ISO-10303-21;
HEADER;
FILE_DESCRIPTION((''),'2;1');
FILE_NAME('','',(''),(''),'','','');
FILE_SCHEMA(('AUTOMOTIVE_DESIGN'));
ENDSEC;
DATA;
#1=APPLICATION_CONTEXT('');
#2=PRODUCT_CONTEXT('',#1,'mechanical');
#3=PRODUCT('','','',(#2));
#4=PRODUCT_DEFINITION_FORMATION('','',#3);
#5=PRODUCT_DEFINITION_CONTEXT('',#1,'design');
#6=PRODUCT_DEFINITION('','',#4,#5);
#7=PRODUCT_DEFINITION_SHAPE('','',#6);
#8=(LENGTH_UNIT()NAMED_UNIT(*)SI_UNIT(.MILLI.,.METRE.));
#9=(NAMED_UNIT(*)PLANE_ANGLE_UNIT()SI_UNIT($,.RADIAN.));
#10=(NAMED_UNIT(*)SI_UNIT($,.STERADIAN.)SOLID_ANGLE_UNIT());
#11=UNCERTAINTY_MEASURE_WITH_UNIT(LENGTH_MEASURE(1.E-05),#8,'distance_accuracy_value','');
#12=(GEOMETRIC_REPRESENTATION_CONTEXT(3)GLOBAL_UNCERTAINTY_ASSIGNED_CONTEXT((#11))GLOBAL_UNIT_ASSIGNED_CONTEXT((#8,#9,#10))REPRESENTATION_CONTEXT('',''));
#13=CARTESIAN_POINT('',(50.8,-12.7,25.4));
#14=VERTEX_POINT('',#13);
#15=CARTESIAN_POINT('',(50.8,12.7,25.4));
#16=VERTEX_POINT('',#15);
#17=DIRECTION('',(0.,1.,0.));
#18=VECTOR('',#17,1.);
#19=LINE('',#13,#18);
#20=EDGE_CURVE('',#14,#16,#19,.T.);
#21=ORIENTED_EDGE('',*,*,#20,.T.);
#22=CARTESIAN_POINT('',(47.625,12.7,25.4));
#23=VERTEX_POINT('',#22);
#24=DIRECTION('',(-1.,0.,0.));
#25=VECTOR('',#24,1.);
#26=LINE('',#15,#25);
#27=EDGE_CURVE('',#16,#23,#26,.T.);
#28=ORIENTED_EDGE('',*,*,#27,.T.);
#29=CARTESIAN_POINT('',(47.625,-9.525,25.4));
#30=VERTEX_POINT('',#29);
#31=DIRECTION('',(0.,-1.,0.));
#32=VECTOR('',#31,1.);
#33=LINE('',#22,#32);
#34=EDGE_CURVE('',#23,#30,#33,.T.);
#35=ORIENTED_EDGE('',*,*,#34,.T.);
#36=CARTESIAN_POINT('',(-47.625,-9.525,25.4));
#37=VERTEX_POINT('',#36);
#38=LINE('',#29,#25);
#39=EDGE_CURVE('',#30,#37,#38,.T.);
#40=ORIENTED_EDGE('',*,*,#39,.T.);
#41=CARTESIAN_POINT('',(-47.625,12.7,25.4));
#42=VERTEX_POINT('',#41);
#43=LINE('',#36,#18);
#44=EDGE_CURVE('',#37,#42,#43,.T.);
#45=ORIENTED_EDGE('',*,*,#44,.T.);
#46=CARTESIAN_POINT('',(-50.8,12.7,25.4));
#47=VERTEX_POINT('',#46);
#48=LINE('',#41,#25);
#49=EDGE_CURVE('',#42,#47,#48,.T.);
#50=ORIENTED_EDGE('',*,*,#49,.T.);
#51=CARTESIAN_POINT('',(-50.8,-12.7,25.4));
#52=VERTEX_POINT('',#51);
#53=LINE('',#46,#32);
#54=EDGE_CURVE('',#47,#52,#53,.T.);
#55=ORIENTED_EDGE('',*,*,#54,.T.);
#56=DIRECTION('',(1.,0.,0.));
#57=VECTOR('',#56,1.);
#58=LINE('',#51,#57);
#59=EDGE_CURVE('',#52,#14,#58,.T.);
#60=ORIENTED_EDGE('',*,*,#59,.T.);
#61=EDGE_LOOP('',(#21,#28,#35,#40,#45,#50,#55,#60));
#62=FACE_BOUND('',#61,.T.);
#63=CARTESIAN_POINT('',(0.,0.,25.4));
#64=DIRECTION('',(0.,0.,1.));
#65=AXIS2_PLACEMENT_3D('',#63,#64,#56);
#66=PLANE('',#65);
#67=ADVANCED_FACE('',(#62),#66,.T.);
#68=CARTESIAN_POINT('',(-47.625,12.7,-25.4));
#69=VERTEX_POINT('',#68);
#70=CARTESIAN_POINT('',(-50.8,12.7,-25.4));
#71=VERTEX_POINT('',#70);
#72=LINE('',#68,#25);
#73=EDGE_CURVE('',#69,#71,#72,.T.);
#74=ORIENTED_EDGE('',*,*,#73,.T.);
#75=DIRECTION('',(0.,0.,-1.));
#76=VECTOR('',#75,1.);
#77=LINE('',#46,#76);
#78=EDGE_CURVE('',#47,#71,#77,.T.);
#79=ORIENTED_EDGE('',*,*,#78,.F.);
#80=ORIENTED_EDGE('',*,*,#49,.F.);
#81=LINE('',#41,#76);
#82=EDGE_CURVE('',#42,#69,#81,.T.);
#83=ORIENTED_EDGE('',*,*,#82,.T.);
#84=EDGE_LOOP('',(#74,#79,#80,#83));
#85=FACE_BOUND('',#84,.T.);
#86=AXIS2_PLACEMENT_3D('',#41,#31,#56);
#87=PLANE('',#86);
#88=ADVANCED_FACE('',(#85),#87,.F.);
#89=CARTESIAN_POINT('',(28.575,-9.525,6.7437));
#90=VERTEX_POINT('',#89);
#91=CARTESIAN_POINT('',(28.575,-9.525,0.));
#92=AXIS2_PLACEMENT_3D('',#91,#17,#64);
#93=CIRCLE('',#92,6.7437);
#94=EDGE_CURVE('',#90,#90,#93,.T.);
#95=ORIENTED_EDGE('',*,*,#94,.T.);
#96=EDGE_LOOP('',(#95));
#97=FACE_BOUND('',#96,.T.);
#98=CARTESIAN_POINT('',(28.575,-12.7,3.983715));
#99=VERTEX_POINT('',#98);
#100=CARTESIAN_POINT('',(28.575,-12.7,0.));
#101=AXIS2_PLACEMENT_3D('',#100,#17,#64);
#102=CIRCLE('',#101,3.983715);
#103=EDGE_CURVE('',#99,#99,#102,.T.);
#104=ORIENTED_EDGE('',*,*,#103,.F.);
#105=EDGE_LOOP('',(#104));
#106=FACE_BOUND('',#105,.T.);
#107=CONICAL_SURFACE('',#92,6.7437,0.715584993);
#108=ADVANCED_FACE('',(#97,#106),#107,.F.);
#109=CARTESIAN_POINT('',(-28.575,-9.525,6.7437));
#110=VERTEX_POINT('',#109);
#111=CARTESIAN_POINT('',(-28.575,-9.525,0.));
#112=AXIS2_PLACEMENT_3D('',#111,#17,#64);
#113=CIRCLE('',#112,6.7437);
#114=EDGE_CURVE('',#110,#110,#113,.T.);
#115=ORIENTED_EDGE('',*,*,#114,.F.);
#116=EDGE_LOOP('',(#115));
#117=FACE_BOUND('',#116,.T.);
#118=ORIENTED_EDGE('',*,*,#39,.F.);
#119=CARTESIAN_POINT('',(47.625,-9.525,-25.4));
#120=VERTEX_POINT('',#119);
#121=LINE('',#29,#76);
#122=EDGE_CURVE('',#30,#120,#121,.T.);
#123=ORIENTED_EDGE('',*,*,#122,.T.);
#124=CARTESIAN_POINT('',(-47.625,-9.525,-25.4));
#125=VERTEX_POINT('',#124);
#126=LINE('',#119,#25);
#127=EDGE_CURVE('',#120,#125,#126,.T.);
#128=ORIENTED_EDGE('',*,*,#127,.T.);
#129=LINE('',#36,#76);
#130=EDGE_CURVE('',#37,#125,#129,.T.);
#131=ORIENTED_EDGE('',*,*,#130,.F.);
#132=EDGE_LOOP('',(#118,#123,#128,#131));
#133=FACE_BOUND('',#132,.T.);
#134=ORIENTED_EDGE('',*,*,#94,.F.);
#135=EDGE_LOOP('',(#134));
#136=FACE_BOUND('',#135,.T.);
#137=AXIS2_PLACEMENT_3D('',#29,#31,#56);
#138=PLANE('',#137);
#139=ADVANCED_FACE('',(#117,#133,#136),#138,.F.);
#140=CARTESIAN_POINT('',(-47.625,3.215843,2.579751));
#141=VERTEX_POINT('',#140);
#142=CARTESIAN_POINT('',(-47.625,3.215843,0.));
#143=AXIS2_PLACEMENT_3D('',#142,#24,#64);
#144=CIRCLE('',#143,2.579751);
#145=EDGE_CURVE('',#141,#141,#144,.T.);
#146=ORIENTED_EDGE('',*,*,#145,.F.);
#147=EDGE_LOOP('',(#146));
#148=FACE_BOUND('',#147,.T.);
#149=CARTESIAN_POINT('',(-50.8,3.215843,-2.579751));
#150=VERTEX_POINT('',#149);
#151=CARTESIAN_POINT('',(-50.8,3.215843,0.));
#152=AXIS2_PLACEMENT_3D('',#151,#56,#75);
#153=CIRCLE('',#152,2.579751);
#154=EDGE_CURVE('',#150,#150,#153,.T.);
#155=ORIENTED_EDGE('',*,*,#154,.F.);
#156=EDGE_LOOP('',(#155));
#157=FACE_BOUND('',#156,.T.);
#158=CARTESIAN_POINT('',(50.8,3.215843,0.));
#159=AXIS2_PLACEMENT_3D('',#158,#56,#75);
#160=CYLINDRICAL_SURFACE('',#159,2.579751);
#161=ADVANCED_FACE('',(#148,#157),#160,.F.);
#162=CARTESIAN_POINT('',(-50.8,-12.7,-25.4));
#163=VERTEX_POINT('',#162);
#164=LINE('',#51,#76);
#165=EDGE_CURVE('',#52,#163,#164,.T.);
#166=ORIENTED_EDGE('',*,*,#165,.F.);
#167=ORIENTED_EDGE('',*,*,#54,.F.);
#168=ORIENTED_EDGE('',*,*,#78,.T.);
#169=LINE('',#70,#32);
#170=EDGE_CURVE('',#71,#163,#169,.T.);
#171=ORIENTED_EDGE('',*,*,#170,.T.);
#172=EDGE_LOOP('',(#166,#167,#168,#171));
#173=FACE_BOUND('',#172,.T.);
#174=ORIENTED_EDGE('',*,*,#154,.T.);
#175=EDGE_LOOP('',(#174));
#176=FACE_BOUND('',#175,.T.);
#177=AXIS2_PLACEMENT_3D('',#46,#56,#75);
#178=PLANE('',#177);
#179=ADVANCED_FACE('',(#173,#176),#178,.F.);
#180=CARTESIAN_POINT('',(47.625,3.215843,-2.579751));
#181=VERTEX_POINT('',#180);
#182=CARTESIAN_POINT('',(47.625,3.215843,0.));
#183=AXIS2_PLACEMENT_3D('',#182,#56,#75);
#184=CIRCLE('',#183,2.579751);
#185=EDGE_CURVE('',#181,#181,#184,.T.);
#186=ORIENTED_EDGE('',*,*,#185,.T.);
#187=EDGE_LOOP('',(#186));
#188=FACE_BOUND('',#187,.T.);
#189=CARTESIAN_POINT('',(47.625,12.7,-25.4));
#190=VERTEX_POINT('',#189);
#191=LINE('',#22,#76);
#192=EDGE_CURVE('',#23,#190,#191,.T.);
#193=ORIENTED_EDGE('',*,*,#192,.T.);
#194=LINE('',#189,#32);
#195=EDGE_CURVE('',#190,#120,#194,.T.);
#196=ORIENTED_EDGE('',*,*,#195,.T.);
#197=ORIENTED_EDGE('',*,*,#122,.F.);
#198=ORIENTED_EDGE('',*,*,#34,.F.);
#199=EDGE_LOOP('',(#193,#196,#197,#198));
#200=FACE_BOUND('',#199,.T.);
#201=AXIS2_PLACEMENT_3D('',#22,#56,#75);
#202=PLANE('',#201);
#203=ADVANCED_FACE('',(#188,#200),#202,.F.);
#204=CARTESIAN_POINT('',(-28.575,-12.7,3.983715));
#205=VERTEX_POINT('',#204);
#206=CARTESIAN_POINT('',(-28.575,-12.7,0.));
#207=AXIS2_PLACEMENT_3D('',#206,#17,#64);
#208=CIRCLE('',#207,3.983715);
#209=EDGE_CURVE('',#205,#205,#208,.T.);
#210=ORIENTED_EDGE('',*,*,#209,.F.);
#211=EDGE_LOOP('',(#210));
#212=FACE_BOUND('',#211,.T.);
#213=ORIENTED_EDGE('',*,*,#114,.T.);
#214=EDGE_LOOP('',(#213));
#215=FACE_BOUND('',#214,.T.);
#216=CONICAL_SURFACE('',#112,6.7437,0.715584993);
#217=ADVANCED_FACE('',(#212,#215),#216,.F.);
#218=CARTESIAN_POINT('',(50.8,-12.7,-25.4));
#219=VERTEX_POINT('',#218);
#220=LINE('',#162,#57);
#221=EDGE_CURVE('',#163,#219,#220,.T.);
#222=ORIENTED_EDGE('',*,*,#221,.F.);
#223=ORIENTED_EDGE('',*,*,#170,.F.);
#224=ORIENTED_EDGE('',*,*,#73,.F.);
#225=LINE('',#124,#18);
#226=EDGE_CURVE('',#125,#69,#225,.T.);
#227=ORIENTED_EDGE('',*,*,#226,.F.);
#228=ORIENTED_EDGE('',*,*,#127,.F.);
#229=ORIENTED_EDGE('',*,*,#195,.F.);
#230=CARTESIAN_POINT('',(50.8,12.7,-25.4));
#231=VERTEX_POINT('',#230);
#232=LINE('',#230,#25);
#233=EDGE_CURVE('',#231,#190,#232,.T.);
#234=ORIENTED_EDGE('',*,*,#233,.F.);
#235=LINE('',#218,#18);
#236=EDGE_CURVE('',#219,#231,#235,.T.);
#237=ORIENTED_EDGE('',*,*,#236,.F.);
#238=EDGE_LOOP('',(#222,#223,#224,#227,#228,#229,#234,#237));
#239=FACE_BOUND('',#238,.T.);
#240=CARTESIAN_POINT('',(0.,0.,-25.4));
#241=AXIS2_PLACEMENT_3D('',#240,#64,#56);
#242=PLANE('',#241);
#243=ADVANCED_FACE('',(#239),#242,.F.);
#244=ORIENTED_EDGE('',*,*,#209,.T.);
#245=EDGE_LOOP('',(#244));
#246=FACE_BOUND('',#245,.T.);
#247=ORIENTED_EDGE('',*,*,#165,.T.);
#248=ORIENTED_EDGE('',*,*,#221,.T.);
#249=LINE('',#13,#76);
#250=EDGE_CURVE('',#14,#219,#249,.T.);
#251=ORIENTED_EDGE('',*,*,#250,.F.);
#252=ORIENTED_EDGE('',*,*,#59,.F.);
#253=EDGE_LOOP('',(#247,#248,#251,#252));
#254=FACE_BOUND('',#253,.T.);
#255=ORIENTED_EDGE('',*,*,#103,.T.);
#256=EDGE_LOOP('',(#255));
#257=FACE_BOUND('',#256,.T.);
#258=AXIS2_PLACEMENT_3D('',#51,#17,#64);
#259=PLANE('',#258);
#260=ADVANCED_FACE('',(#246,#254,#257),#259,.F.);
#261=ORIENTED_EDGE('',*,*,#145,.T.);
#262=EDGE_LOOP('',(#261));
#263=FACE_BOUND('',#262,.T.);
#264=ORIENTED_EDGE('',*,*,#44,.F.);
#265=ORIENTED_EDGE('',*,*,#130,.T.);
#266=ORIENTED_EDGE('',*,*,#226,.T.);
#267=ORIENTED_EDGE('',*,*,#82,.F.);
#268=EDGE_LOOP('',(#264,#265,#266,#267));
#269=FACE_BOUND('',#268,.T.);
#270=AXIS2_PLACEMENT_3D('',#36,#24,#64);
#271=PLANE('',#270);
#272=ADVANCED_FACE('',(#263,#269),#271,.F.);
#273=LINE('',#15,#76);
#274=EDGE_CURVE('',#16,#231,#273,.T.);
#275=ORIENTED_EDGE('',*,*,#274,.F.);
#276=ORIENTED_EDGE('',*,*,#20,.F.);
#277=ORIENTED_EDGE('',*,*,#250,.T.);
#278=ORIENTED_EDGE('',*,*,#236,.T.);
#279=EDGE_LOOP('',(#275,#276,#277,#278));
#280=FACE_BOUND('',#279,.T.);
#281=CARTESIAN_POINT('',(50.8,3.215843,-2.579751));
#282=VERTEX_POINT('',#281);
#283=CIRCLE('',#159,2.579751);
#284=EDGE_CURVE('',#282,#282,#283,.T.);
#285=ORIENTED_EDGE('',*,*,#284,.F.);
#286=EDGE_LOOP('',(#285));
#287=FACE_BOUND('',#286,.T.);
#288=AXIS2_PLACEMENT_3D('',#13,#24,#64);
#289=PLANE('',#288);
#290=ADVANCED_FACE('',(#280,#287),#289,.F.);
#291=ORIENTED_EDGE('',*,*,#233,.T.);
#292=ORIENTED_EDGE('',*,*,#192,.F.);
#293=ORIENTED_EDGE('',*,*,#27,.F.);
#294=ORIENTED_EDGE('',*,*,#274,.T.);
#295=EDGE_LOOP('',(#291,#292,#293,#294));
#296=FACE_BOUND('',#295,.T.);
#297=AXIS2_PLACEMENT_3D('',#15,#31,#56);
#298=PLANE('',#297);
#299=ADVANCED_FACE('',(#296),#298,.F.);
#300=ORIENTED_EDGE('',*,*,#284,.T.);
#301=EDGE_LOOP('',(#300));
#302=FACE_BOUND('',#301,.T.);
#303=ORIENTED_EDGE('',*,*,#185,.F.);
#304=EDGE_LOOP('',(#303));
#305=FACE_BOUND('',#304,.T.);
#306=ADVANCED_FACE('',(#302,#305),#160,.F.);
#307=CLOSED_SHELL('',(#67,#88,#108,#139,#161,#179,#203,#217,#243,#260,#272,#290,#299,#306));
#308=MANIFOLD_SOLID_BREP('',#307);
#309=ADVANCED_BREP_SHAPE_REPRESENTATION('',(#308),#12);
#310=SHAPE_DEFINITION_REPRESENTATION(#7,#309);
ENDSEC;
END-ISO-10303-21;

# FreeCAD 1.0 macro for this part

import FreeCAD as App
import Part
import Sketcher
from FreeCAD import Vector
Q = App.Units.Quantity

doc = App.newDocument("Part")
body = doc.addObject("PartDesign::Body", "Body")

sketch1 = doc.addObject("Sketcher::SketchObject", "Sketch")
body.addObject(sketch1)
sketch1.AttachmentSupport = (doc.XY_Plane, [""])
sketch1.MapMode = "FlatFace"
sketch1.addGeometry(Part.LineSegment(Vector(-50.8, 12.7, 0), Vector(-50.8, -12.7, 0)), False)
sketch1.addGeometry(Part.LineSegment(Vector(-50.8, -12.7, 0), Vector(50.8, -12.7, 0)), False)
sketch1.addGeometry(Part.LineSegment(Vector(50.8, -12.7, 0), Vector(50.8, 12.7, 0)), False)
sketch1.addGeometry(Part.LineSegment(Vector(50.8, 12.7, 0), Vector(47.6, 12.7, 0)), False)
sketch1.addGeometry(Part.LineSegment(Vector(47.6, 12.7, 0), Vector(47.6, -9.5, 0)), False)
sketch1.addGeometry(Part.LineSegment(Vector(47.6, -9.5, 0), Vector(-47.6, -9.5, 0)), False)
sketch1.addGeometry(Part.LineSegment(Vector(-47.6, -9.5, 0), Vector(-47.6, 12.7, 0)), False)
sketch1.addGeometry(Part.LineSegment(Vector(-47.6, 12.7, 0), Vector(-50.8, 12.7, 0)), False)
sketch1.addConstraint(Sketcher.Constraint("Coincident", 0, 2, 1, 1))
sketch1.addConstraint(Sketcher.Constraint("Coincident", 1, 2, 2, 1))
sketch1.addConstraint(Sketcher.Constraint("Coincident", 2, 2, 3, 1))
sketch1.addConstraint(Sketcher.Constraint("Coincident", 3, 2, 4, 1))
sketch1.addConstraint(Sketcher.Constraint("Coincident", 4, 2, 5, 1))
sketch1.addConstraint(Sketcher.Constraint("Coincident", 5, 2, 6, 1))
sketch1.addConstraint(Sketcher.Constraint("Coincident", 6, 2, 7, 1))
sketch1.addConstraint(Sketcher.Constraint("Coincident", 7, 2, 0, 1))
sketch1.addConstraint(Sketcher.Constraint("Vertical", 0))
sketch1.addConstraint(Sketcher.Constraint("Horizontal", 1))
sketch1.addConstraint(Sketcher.Constraint("Vertical", 2))
sketch1.addConstraint(Sketcher.Constraint("Horizontal", 3))
sketch1.addConstraint(Sketcher.Constraint("Vertical", 4))
sketch1.addConstraint(Sketcher.Constraint("Horizontal", 5))
sketch1.addConstraint(Sketcher.Constraint("Vertical", 6))
sketch1.addConstraint(Sketcher.Constraint("Horizontal", 7))
sketch1.addConstraint(Sketcher.Constraint("Symmetric", 0, 2, 2, 2, -1, 1))
sketch1.addConstraint(Sketcher.Constraint("Symmetric", 3, 2, 6, 2, -2))
sketch1.addConstraint(Sketcher.Constraint("DistanceX", 1, 1, 1, 2, Q("4 in")))
sketch1.addConstraint(Sketcher.Constraint("DistanceY", 0, 2, 0, 1, Q("1 in")))
sketch1.addConstraint(Sketcher.Constraint("DistanceX", 5, 2, 5, 1, Q("3.75 in")))
sketch1.addConstraint(Sketcher.Constraint("DistanceY", 4, 2, 4, 1, Q("0.875 in")))
pad1 = doc.addObject("PartDesign::Pad", "Pad")
body.addObject(pad1)
pad1.Profile = sketch1
pad1.Length = Q("2 in")
pad1.Midplane = True

sketch2 = doc.addObject("Sketcher::SketchObject", "Sketch001")
body.addObject(sketch2)
sketch2.AttachmentSupport = (doc.YZ_Plane, [""])
sketch2.MapMode = "FlatFace"
sketch2.AttachmentOffset = App.Placement(Vector(0, 0, -1.125 * 25.4), App.Rotation())
sketch2.addGeometry(Part.LineSegment(Vector(-12.7, 0, 0), Vector(-9.5, 0, 0)), False)
sketch2.addGeometry(Part.LineSegment(Vector(-9.5, 0, 0), Vector(-9.5, 6.7, 0)), False)
sketch2.addGeometry(Part.LineSegment(Vector(-9.5, 6.7, 0), Vector(-13.6, 3.2, 0)), False)
sketch2.addGeometry(Part.LineSegment(Vector(-13.6, 3.2, 0), Vector(-12.7, 3.2, 0)), False)
sketch2.addGeometry(Part.LineSegment(Vector(-12.7, 3.2, 0), Vector(-12.7, 0, 0)), False)
sketch2.addConstraint(Sketcher.Constraint("Coincident", 0, 2, 1, 1))
sketch2.addConstraint(Sketcher.Constraint("Coincident", 1, 2, 2, 1))
sketch2.addConstraint(Sketcher.Constraint("Coincident", 2, 2, 3, 1))
sketch2.addConstraint(Sketcher.Constraint("Coincident", 3, 2, 4, 1))
sketch2.addConstraint(Sketcher.Constraint("Coincident", 4, 2, 0, 1))
sketch2.addConstraint(Sketcher.Constraint("Horizontal", 0))
sketch2.addConstraint(Sketcher.Constraint("Vertical", 1))
sketch2.addConstraint(Sketcher.Constraint("Horizontal", 3))
sketch2.addConstraint(Sketcher.Constraint("Vertical", 4))
sketch2.addConstraint(Sketcher.Constraint("PointOnObject", 0, 2, -1))
sketch2.addConstraint(Sketcher.Constraint("Equal", 0, 4))
sketch2.addConstraint(Sketcher.Constraint("Angle", 2, Q("-139 deg")))
sketch2.addConstraint(Sketcher.Constraint("DistanceX", 3, 2, -1, 1, Q("0.5 in")))
sketch2.addConstraint(Sketcher.Constraint("DistanceX", 0, 1, 0, 2, Q("0.125 in")))
sketch2.addConstraint(Sketcher.Constraint("DistanceY", 1, 1, 1, 2, Q("0.2655 in")))
groove = doc.addObject("PartDesign::Groove", "Groove")
body.addObject(groove)
groove.Profile = sketch2
groove.ReferenceAxis = (sketch2, ["H_Axis"])
groove.Angle = 360
doc.recompute()

linearpattern = doc.addObject("PartDesign::LinearPattern", "LinearPattern")
body.addObject(linearpattern)
linearpattern.Originals = [groove]
linearpattern.Direction = (doc.X_Axis, [""])
linearpattern.Mode = "offset"
linearpattern.Offset = Q("2.25 in")
linearpattern.Occurrences = 2
body.Tip = linearpattern

sketch3 = doc.addObject("Sketcher::SketchObject", "Sketch002")
body.addObject(sketch3)
sketch3.AttachmentSupport = (doc.YZ_Plane, [""])
sketch3.MapMode = "FlatFace"
sketch3.AttachmentOffset = App.Placement(Vector(0, 0, 2 * 25.4), App.Rotation())
sketch3.addGeometry(Part.Circle(Vector(3.2, 0, 0), Vector(0, 0, 1), 2.6), False)
sketch3.addConstraint(Sketcher.Constraint("PointOnObject", 0, 3, -1))
sketch3.addConstraint(Sketcher.Constraint("Diameter", 0, 5.159502))
sketch3.addConstraint(Sketcher.Constraint("DistanceX", -1, 1, 0, 3, 3.215843))
doc.recompute()
hole = doc.addObject("PartDesign::Hole", "Hole")
body.addObject(hole)
hole.Profile = sketch3
hole.ThreadType = "None"
hole.Diameter = 5.159502
hole.DepthType = "ThroughAll"

doc.recompute()
